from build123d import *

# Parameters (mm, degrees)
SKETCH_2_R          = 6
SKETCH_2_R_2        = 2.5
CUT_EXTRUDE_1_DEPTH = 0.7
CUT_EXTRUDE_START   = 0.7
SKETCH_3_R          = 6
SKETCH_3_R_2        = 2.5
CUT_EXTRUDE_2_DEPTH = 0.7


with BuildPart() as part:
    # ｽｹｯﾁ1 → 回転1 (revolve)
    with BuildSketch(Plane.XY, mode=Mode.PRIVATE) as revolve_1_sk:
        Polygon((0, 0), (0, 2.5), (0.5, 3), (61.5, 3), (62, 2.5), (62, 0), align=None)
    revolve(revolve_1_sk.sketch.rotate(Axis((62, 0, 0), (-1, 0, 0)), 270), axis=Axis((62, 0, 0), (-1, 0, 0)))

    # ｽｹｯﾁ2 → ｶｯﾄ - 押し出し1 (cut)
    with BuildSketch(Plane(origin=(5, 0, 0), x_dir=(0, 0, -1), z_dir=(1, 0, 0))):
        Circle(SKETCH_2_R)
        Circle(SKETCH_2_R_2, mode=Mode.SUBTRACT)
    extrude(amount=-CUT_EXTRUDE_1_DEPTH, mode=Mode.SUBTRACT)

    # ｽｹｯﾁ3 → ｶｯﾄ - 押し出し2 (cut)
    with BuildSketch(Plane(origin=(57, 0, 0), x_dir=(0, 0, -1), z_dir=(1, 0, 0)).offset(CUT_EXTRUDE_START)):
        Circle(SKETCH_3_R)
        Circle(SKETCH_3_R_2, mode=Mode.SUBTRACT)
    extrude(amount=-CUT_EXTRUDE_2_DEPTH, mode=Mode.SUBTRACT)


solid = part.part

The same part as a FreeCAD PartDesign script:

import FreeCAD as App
import Part
import Sketcher
from FreeCAD import Vector

doc = App.newDocument("Part")
body = doc.addObject("PartDesign::Body", "Body")

# Sketch on XY plane
sketch1 = body.newObject("Sketcher::SketchObject", "Sketch")
sketch1.AttachmentSupport = (doc.getObject("XY_Plane"), [""])
sketch1.MapMode = "FlatFace"
sketch1.addGeometry([
    Part.LineSegment(Vector(0, 2.5, 0), Vector(0, 0, 0)),  # 0
    Part.LineSegment(Vector(0, 0, 0), Vector(62, 0, 0)),  # 1
    Part.LineSegment(Vector(62, 0, 0), Vector(62, 2.5, 0)),  # 2
    Part.LineSegment(Vector(62, 2.5, 0), Vector(61.5, 3, 0)),  # 3
    Part.LineSegment(Vector(61.5, 3, 0), Vector(0.5, 3, 0)),  # 4
    Part.LineSegment(Vector(0.5, 3, 0), Vector(0, 2.5, 0)),  # 5
], False)
sketch1.addConstraint([
    Sketcher.Constraint("Coincident", 0, 2, 1, 1),
    Sketcher.Constraint("Coincident", 1, 2, 2, 1),
    Sketcher.Constraint("Coincident", 2, 2, 3, 1),
    Sketcher.Constraint("Coincident", 3, 2, 4, 1),
    Sketcher.Constraint("Coincident", 4, 2, 5, 1),
    Sketcher.Constraint("Coincident", 5, 2, 0, 1),
    Sketcher.Constraint("Vertical", 0),
    Sketcher.Constraint("Horizontal", 1),
    Sketcher.Constraint("Vertical", 2),
    Sketcher.Constraint("Horizontal", 4),
    Sketcher.Constraint("Coincident", 0, 2, -1, 1),
    Sketcher.Constraint("Perpendicular", 3, 5),
    Sketcher.Constraint("Horizontal", 2, 2, 5, 2),
    Sketcher.Constraint("Equal", 3, 5),
    Sketcher.Constraint("DistanceX", 1, 1, 1, 2, 62.0),
    Sketcher.Constraint("DistanceX", 4, 2, 4, 1, 61.0),
    Sketcher.Constraint("DistanceY", 0, 2, 0, 1, 2.5),
])
revolution = body.newObject("PartDesign::Revolution", "Revolution")
revolution.Profile = sketch1
revolution.ReferenceAxis = (sketch1, ["H_Axis"])
revolution.Angle = 360

# Sketch on YZ plane
sketch2 = body.newObject("Sketcher::SketchObject", "Sketch001")
sketch2.AttachmentSupport = (doc.getObject("YZ_Plane"), [""])
sketch2.MapMode = "FlatFace"
sketch2.AttachmentOffset = App.Placement(Vector(0, 0, 5), App.Rotation())
sketch2.addGeometry([
    Part.Circle(Vector(0, 0, 0), Vector(0, 0, 1), 6),
    Part.Circle(Vector(0, 0, 0), Vector(0, 0, 1), 2.5),
], False)
sketch2.addConstraint([
    Sketcher.Constraint("Coincident", 0, 3, -1, 1),
    Sketcher.Constraint("Coincident", 1, 3, -1, 1),
    Sketcher.Constraint("Diameter", 0, 12.0),
    Sketcher.Constraint("Diameter", 1, 5.0),
])
pocket1 = body.newObject("PartDesign::Pocket", "Pocket")
pocket1.Profile = sketch2
pocket1.Length = 0.7

# Sketch on YZ plane
sketch3 = body.newObject("Sketcher::SketchObject", "Sketch002")
sketch3.AttachmentSupport = (doc.getObject("YZ_Plane"), [""])
sketch3.MapMode = "FlatFace"
sketch3.AttachmentOffset = App.Placement(Vector(0, 0, 57.7), App.Rotation())
sketch3.addGeometry([
    Part.Circle(Vector(0, 0, 0), Vector(0, 0, 1), 6),
    Part.Circle(Vector(0, 0, 0), Vector(0, 0, 1), 2.5),
], False)
sketch3.addConstraint([
    Sketcher.Constraint("Coincident", 0, 3, -1, 1),
    Sketcher.Constraint("Coincident", 1, 3, -1, 1),
    Sketcher.Constraint("Diameter", 0, 12.0),
    Sketcher.Constraint("Diameter", 1, 5.0),
])
pocket2 = body.newObject("PartDesign::Pocket", "Pocket001")
pocket2.Profile = sketch3
pocket2.Length = 0.7

doc.recompute()
